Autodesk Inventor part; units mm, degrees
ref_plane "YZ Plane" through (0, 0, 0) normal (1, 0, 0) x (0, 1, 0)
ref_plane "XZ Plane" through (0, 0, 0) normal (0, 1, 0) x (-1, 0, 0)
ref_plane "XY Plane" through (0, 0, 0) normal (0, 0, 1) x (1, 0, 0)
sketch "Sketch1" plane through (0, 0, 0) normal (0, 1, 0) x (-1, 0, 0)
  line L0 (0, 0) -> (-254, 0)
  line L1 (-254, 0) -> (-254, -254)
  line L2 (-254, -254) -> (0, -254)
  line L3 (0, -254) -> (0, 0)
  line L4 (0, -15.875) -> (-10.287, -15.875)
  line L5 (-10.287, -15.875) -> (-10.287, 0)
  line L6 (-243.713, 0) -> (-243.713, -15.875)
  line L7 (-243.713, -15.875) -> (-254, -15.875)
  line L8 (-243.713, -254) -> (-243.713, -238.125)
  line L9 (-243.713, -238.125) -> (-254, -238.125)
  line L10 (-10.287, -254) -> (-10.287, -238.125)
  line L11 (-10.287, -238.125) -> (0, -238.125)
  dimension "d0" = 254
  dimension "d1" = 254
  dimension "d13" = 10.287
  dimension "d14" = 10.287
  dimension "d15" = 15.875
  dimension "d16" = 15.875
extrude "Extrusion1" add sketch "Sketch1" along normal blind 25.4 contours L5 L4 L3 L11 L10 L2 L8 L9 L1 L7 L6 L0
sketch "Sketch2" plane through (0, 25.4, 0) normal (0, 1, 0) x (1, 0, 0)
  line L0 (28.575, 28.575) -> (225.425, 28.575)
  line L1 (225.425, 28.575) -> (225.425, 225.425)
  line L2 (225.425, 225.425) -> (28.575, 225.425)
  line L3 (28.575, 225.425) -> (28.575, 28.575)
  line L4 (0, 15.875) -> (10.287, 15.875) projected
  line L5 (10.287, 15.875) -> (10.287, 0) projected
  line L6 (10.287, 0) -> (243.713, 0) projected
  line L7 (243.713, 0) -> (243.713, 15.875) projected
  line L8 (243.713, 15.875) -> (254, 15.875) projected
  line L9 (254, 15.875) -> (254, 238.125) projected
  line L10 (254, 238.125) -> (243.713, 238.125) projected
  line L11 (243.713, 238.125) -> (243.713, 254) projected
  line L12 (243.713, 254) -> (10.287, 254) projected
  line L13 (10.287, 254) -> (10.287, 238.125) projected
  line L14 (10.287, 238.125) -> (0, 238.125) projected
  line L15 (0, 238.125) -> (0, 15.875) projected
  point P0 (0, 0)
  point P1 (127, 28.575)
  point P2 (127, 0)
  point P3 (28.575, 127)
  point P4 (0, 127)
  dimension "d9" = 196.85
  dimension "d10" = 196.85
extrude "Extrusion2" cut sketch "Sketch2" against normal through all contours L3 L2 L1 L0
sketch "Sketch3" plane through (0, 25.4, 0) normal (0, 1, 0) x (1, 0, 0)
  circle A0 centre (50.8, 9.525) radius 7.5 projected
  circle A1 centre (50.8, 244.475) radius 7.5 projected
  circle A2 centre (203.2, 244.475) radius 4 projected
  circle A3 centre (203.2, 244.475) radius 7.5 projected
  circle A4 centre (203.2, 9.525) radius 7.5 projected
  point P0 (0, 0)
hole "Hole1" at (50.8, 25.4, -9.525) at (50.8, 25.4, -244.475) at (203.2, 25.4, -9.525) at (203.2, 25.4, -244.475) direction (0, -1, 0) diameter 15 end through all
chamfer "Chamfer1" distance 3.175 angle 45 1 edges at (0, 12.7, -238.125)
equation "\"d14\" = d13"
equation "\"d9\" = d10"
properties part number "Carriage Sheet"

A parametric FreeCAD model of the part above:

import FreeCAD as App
import Part
import Sketcher
from FreeCAD import Vector
Q = App.Units.Quantity


def edges_at(feature, points):
    """Names of the edges that pass closest to the given points."""
    edges = feature.Shape.Edges
    near = lambda p: min(range(len(edges)), key=lambda i: edges[i].distToShape(Part.Vertex(*p))[0])
    return sorted({f"Edge{near(p) + 1}" for p in points})


def add_polygon(sketch, points):
    """Adds a closed chain of lines whose ends are joined by coincident constraints."""
    first, n = sketch.GeometryCount, len(points)
    for a, b in zip(points, points[1:] + points[:1]):
        sketch.addGeometry(Part.LineSegment(App.Vector(*a, 0), App.Vector(*b, 0)), False)
    for i in range(n):
        sketch.addConstraint(Sketcher.Constraint("Coincident", first + i, 2, first + (i + 1) % n, 1))

doc = App.newDocument("Part")
body = doc.addObject("PartDesign::Body", "Body")

# Sketch on XZ plane
sketch1 = doc.addObject("Sketcher::SketchObject", "Sketch")
body.addObject(sketch1)
sketch1.AttachmentSupport = (doc.XZ_Plane, [""])
sketch1.MapMode = "FlatFace"
add_polygon(sketch1, [(10.287, -15.875), (10.287, 0), (243.713, 0), (243.713, -15.875), (254, -15.875), (254, -238.125), (243.713, -238.125), (243.713, -254), (10.287, -254), (10.287, -238.125), (0, -238.125), (0, -15.875)])  # lines 0-11
sketch1.addConstraint([
    Sketcher.Constraint("Vertical", 0),
    Sketcher.Constraint("Horizontal", 1),
    Sketcher.Constraint("Vertical", 2),
    Sketcher.Constraint("Horizontal", 3),
    Sketcher.Constraint("Vertical", 4),
    Sketcher.Constraint("Horizontal", 5),
    Sketcher.Constraint("Vertical", 6),
    Sketcher.Constraint("Horizontal", 7),
    Sketcher.Constraint("Vertical", 8),
    Sketcher.Constraint("Horizontal", 9),
    Sketcher.Constraint("Vertical", 10),
    Sketcher.Constraint("Horizontal", 11),
    Sketcher.Constraint("PointOnObject", 0, 2, -1),
    Sketcher.Constraint("PointOnObject", 9, 2, -2),
    Sketcher.Constraint("Horizontal", 5, 2, 8, 2),
    Sketcher.Constraint("Horizontal", 3, 2, 10, 2),
    Sketcher.Constraint("Vertical", 2, 2, 5, 2),
    Sketcher.Constraint("Vertical", 0, 2, 7, 2),
    Sketcher.Constraint("Equal", 5, 9),
    Sketcher.Constraint("Equal", 2, 6),
    Sketcher.Constraint("DistanceX", -1, 1, 3, 2, Q("10 in")),
    Sketcher.Constraint("DistanceY", 6, 2, -1, 1, Q("10 in")),
    Sketcher.Constraint("DistanceX", 3, 1, 3, 2, Q("0.405 in")),
    Sketcher.Constraint("DistanceY", 0, 1, 0, 2, Q("0.625 in")),
])
pad1 = doc.addObject("PartDesign::Pad", "Pad")
body.addObject(pad1)
pad1.Profile = sketch1
pad1.Length = Q("1 in")
pad1.Reversed = True

# Sketch on XZ plane
sketch2 = doc.addObject("Sketcher::SketchObject", "Sketch001")
body.addObject(sketch2)
sketch2.AttachmentSupport = (doc.XZ_Plane, [""])
sketch2.MapMode = "FlatFace"
sketch2.AttachmentOffset = App.Placement(Vector(0, 0, -1 * 25.4), App.Rotation())
add_polygon(sketch2, [(28.575, -225.425), (28.575, -28.575), (225.425, -28.575), (225.425, -225.425)])  # lines 0-3
sketch2.addConstraint([
    Sketcher.Constraint("Vertical", 0),
    Sketcher.Constraint("Horizontal", 1),
    Sketcher.Constraint("Vertical", 2),
    Sketcher.Constraint("Horizontal", 3),
    Sketcher.Constraint("Equal", 3, 0),
    Sketcher.Constraint("DistanceX", 1, 1, 1, 2, Q("7.75 in")),
    Sketcher.Constraint("DistanceX", -1, 1, 0, 2, Q("1.125 in")),
    Sketcher.Constraint("DistanceY", 0, 2, -1, 1, Q("1.125 in")),
])
pocket1 = doc.addObject("PartDesign::Pocket", "Pocket")
body.addObject(pocket1)
pocket1.Profile = sketch2
pocket1.Type = "ThroughAll"
pocket1.Reversed = True

# Sketch on XZ plane
sketch3 = doc.addObject("Sketcher::SketchObject", "Sketch002")
body.addObject(sketch3)
sketch3.AttachmentSupport = (doc.XZ_Plane, [""])
sketch3.MapMode = "FlatFace"
sketch3.AttachmentOffset = App.Placement(Vector(0, 0, -1 * 25.4), App.Rotation())
sketch3.addGeometry([
    Part.Circle(Vector(50.8, -9.525, 0), Vector(0, 0, 1), 7.5),
    Part.Circle(Vector(50.8, -244.475, 0), Vector(0, 0, 1), 7.5),
    Part.Circle(Vector(203.2, -9.525, 0), Vector(0, 0, 1), 7.5),
    Part.Circle(Vector(203.2, -244.475, 0), Vector(0, 0, 1), 7.5),
], False)
sketch3.addConstraint([
    Sketcher.Constraint("Equal", 0, 1),
    Sketcher.Constraint("Equal", 1, 2),
    Sketcher.Constraint("Equal", 2, 3),
    Sketcher.Constraint("Horizontal", 0, 3, 2, 3),
    Sketcher.Constraint("Horizontal", 1, 3, 3, 3),
    Sketcher.Constraint("Vertical", 0, 3, 1, 3),
    Sketcher.Constraint("Vertical", 2, 3, 3, 3),
    Sketcher.Constraint("DistanceX", -1, 1, 0, 3, Q("2 in")),
    Sketcher.Constraint("DistanceX", -1, 1, 2, 3, Q("8 in")),
    Sketcher.Constraint("Diameter", 0, 15.0),
    Sketcher.Constraint("DistanceY", 1, 3, 0, 3, Q("9.25 in")),
    Sketcher.Constraint("DistanceY", 0, 3, -1, 1, Q("0.375 in")),
])
doc.recompute()
hole = doc.addObject("PartDesign::Hole", "Hole")
body.addObject(hole)
hole.Profile = sketch3
hole.ThreadType = "None"
hole.Diameter = 15
hole.DepthType = "ThroughAll"
hole.Reversed = True
doc.recompute()

chamfer = doc.addObject("PartDesign::Chamfer", "Chamfer")
body.addObject(chamfer)
chamfer.Base = (hole, edges_at(hole, [(0, 12.7, -238.125)]))
chamfer.Size = Q("0.125 in")

doc.recompute()
